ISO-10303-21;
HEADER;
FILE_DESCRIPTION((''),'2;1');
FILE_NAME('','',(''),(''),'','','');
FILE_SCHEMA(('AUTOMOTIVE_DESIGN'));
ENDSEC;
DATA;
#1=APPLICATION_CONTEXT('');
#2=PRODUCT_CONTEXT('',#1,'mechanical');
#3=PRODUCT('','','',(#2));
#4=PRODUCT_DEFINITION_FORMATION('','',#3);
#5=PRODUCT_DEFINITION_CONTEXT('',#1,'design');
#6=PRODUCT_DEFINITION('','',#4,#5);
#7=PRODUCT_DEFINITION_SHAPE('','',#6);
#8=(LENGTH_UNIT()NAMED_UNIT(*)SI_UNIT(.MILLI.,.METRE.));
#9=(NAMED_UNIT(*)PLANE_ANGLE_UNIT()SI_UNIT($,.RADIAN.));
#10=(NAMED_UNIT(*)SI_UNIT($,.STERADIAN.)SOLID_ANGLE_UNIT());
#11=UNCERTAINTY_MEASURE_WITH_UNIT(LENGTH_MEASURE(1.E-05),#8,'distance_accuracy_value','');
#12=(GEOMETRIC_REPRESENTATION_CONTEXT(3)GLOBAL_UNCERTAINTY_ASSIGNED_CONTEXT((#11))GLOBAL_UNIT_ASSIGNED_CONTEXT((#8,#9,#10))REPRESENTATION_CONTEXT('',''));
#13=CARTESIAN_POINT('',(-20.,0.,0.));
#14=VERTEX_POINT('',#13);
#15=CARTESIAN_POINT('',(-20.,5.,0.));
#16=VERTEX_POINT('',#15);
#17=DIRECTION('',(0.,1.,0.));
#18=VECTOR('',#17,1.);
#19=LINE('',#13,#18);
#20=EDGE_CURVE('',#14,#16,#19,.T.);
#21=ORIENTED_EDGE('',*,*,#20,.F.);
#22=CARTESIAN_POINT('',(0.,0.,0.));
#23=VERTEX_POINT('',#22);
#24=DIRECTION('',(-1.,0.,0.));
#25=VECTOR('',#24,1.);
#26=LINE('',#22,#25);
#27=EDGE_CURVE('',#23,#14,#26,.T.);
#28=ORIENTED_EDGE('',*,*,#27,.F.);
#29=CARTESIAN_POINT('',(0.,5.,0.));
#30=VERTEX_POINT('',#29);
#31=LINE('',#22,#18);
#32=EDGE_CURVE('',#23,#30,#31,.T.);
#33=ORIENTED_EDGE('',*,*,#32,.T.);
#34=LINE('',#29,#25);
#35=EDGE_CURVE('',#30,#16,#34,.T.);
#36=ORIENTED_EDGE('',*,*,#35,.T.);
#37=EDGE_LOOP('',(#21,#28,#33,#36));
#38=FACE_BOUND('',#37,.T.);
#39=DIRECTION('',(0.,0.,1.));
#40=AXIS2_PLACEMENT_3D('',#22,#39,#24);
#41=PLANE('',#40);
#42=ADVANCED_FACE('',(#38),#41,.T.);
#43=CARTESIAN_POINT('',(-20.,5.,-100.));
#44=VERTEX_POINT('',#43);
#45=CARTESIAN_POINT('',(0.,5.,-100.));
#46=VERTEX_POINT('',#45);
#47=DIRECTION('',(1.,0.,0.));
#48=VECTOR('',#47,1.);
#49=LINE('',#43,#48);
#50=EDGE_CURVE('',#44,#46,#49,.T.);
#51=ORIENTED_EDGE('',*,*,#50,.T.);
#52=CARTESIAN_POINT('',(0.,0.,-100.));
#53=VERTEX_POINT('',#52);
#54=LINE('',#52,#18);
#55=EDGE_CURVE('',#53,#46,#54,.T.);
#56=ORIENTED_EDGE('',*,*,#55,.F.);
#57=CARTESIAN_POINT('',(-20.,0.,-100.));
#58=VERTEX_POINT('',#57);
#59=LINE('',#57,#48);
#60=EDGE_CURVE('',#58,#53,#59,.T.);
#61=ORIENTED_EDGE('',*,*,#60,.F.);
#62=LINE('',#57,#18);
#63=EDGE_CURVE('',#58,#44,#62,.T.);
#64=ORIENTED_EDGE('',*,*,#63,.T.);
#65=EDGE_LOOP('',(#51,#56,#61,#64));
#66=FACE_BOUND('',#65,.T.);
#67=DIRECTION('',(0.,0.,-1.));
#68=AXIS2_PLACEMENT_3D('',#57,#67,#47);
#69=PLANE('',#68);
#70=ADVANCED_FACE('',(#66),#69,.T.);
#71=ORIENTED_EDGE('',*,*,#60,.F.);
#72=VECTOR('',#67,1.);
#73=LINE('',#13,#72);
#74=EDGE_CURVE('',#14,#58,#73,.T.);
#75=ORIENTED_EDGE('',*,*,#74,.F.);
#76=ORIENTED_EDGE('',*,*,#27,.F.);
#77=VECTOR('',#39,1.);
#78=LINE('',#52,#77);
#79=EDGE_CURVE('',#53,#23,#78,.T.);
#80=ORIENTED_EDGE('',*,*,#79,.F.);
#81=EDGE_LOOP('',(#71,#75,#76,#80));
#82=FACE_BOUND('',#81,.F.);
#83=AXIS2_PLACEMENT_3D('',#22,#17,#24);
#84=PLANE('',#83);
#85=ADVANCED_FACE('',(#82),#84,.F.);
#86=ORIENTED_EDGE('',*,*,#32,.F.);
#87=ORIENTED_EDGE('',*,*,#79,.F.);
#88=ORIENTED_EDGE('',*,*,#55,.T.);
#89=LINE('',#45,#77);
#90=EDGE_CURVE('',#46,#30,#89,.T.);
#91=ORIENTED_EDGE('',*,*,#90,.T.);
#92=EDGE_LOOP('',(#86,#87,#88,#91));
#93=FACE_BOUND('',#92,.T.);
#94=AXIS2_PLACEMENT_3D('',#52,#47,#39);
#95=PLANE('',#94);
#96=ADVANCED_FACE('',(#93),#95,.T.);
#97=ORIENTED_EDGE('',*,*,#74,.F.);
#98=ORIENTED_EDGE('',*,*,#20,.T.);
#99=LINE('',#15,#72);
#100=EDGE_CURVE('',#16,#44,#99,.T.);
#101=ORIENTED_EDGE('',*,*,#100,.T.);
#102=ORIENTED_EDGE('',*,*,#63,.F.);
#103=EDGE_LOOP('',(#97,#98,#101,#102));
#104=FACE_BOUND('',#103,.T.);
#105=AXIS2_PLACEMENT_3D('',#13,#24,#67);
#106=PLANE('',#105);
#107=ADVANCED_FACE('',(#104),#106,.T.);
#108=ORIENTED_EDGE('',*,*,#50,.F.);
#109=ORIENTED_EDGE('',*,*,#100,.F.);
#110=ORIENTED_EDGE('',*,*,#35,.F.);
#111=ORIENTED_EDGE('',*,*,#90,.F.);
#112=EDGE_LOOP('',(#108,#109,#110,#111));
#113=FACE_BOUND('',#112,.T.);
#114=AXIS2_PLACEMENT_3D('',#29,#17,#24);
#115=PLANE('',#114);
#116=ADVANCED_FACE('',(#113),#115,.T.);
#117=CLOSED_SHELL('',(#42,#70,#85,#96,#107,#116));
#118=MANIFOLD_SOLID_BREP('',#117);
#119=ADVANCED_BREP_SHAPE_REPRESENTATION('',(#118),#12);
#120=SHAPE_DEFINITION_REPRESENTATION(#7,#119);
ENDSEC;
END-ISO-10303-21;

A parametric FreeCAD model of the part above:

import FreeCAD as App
import Part
import Sketcher
Q = App.Units.Quantity

doc = App.newDocument("Part")
params = doc.addObject("Spreadsheet::Sheet", "Params")
for row, (alias, value) in enumerate([
    ("sketch1_width", "20 mm"),
    ("sketch1_height", "100 mm"),
    ("pad1_length", "5 mm"),
], start=1):
    params.set(f"A{row}", alias)
    params.set(f"B{row}", "=" + value)
    params.setAlias(f"B{row}", alias)

body = doc.addObject("PartDesign::Body", "Body")

sketch1 = body.newObject("Sketcher::SketchObject", "Sketch")
sketch1.AttachmentSupport = (doc.getObject("XZ_Plane"), [""])
sketch1.MapMode = "FlatFace"
sketch1.addGeometry([
    Part.LineSegment(App.Vector(-20, 0, 0), App.Vector(0, 0, 0)),
    Part.LineSegment(App.Vector(0, 0, 0), App.Vector(0, -100, 0)),
    Part.LineSegment(App.Vector(0, -100, 0), App.Vector(-20, -100, 0)),
    Part.LineSegment(App.Vector(-20, -100, 0), App.Vector(-20, 0, 0)),
], False)
sketch1.addConstraint([
    Sketcher.Constraint("Coincident", 0, 2, 1, 1),
    Sketcher.Constraint("Coincident", 1, 2, 2, 1),
    Sketcher.Constraint("Coincident", 2, 2, 3, 1),
    Sketcher.Constraint("Coincident", 3, 2, 0, 1),
    Sketcher.Constraint("Horizontal", 0),
    Sketcher.Constraint("Vertical", 1),
    Sketcher.Constraint("Horizontal", 2),
    Sketcher.Constraint("Vertical", 3),
    Sketcher.Constraint("Coincident", 0, 2, -1, 1),
    Sketcher.Constraint("DistanceX", 0, 1, 0, 2, Q("20 mm")),
    Sketcher.Constraint("DistanceY", 1, 2, 1, 1, Q("100 mm")),
])
sketch1.setExpression("Constraints[9]", "Params.sketch1_width")
sketch1.setExpression("Constraints[10]", "Params.sketch1_height")
pad1 = body.newObject("PartDesign::Pad", "Pad")
pad1.Profile = sketch1
pad1.setExpression("Length", "Params.pad1_length")
pad1.Reversed = True

doc.recompute()
